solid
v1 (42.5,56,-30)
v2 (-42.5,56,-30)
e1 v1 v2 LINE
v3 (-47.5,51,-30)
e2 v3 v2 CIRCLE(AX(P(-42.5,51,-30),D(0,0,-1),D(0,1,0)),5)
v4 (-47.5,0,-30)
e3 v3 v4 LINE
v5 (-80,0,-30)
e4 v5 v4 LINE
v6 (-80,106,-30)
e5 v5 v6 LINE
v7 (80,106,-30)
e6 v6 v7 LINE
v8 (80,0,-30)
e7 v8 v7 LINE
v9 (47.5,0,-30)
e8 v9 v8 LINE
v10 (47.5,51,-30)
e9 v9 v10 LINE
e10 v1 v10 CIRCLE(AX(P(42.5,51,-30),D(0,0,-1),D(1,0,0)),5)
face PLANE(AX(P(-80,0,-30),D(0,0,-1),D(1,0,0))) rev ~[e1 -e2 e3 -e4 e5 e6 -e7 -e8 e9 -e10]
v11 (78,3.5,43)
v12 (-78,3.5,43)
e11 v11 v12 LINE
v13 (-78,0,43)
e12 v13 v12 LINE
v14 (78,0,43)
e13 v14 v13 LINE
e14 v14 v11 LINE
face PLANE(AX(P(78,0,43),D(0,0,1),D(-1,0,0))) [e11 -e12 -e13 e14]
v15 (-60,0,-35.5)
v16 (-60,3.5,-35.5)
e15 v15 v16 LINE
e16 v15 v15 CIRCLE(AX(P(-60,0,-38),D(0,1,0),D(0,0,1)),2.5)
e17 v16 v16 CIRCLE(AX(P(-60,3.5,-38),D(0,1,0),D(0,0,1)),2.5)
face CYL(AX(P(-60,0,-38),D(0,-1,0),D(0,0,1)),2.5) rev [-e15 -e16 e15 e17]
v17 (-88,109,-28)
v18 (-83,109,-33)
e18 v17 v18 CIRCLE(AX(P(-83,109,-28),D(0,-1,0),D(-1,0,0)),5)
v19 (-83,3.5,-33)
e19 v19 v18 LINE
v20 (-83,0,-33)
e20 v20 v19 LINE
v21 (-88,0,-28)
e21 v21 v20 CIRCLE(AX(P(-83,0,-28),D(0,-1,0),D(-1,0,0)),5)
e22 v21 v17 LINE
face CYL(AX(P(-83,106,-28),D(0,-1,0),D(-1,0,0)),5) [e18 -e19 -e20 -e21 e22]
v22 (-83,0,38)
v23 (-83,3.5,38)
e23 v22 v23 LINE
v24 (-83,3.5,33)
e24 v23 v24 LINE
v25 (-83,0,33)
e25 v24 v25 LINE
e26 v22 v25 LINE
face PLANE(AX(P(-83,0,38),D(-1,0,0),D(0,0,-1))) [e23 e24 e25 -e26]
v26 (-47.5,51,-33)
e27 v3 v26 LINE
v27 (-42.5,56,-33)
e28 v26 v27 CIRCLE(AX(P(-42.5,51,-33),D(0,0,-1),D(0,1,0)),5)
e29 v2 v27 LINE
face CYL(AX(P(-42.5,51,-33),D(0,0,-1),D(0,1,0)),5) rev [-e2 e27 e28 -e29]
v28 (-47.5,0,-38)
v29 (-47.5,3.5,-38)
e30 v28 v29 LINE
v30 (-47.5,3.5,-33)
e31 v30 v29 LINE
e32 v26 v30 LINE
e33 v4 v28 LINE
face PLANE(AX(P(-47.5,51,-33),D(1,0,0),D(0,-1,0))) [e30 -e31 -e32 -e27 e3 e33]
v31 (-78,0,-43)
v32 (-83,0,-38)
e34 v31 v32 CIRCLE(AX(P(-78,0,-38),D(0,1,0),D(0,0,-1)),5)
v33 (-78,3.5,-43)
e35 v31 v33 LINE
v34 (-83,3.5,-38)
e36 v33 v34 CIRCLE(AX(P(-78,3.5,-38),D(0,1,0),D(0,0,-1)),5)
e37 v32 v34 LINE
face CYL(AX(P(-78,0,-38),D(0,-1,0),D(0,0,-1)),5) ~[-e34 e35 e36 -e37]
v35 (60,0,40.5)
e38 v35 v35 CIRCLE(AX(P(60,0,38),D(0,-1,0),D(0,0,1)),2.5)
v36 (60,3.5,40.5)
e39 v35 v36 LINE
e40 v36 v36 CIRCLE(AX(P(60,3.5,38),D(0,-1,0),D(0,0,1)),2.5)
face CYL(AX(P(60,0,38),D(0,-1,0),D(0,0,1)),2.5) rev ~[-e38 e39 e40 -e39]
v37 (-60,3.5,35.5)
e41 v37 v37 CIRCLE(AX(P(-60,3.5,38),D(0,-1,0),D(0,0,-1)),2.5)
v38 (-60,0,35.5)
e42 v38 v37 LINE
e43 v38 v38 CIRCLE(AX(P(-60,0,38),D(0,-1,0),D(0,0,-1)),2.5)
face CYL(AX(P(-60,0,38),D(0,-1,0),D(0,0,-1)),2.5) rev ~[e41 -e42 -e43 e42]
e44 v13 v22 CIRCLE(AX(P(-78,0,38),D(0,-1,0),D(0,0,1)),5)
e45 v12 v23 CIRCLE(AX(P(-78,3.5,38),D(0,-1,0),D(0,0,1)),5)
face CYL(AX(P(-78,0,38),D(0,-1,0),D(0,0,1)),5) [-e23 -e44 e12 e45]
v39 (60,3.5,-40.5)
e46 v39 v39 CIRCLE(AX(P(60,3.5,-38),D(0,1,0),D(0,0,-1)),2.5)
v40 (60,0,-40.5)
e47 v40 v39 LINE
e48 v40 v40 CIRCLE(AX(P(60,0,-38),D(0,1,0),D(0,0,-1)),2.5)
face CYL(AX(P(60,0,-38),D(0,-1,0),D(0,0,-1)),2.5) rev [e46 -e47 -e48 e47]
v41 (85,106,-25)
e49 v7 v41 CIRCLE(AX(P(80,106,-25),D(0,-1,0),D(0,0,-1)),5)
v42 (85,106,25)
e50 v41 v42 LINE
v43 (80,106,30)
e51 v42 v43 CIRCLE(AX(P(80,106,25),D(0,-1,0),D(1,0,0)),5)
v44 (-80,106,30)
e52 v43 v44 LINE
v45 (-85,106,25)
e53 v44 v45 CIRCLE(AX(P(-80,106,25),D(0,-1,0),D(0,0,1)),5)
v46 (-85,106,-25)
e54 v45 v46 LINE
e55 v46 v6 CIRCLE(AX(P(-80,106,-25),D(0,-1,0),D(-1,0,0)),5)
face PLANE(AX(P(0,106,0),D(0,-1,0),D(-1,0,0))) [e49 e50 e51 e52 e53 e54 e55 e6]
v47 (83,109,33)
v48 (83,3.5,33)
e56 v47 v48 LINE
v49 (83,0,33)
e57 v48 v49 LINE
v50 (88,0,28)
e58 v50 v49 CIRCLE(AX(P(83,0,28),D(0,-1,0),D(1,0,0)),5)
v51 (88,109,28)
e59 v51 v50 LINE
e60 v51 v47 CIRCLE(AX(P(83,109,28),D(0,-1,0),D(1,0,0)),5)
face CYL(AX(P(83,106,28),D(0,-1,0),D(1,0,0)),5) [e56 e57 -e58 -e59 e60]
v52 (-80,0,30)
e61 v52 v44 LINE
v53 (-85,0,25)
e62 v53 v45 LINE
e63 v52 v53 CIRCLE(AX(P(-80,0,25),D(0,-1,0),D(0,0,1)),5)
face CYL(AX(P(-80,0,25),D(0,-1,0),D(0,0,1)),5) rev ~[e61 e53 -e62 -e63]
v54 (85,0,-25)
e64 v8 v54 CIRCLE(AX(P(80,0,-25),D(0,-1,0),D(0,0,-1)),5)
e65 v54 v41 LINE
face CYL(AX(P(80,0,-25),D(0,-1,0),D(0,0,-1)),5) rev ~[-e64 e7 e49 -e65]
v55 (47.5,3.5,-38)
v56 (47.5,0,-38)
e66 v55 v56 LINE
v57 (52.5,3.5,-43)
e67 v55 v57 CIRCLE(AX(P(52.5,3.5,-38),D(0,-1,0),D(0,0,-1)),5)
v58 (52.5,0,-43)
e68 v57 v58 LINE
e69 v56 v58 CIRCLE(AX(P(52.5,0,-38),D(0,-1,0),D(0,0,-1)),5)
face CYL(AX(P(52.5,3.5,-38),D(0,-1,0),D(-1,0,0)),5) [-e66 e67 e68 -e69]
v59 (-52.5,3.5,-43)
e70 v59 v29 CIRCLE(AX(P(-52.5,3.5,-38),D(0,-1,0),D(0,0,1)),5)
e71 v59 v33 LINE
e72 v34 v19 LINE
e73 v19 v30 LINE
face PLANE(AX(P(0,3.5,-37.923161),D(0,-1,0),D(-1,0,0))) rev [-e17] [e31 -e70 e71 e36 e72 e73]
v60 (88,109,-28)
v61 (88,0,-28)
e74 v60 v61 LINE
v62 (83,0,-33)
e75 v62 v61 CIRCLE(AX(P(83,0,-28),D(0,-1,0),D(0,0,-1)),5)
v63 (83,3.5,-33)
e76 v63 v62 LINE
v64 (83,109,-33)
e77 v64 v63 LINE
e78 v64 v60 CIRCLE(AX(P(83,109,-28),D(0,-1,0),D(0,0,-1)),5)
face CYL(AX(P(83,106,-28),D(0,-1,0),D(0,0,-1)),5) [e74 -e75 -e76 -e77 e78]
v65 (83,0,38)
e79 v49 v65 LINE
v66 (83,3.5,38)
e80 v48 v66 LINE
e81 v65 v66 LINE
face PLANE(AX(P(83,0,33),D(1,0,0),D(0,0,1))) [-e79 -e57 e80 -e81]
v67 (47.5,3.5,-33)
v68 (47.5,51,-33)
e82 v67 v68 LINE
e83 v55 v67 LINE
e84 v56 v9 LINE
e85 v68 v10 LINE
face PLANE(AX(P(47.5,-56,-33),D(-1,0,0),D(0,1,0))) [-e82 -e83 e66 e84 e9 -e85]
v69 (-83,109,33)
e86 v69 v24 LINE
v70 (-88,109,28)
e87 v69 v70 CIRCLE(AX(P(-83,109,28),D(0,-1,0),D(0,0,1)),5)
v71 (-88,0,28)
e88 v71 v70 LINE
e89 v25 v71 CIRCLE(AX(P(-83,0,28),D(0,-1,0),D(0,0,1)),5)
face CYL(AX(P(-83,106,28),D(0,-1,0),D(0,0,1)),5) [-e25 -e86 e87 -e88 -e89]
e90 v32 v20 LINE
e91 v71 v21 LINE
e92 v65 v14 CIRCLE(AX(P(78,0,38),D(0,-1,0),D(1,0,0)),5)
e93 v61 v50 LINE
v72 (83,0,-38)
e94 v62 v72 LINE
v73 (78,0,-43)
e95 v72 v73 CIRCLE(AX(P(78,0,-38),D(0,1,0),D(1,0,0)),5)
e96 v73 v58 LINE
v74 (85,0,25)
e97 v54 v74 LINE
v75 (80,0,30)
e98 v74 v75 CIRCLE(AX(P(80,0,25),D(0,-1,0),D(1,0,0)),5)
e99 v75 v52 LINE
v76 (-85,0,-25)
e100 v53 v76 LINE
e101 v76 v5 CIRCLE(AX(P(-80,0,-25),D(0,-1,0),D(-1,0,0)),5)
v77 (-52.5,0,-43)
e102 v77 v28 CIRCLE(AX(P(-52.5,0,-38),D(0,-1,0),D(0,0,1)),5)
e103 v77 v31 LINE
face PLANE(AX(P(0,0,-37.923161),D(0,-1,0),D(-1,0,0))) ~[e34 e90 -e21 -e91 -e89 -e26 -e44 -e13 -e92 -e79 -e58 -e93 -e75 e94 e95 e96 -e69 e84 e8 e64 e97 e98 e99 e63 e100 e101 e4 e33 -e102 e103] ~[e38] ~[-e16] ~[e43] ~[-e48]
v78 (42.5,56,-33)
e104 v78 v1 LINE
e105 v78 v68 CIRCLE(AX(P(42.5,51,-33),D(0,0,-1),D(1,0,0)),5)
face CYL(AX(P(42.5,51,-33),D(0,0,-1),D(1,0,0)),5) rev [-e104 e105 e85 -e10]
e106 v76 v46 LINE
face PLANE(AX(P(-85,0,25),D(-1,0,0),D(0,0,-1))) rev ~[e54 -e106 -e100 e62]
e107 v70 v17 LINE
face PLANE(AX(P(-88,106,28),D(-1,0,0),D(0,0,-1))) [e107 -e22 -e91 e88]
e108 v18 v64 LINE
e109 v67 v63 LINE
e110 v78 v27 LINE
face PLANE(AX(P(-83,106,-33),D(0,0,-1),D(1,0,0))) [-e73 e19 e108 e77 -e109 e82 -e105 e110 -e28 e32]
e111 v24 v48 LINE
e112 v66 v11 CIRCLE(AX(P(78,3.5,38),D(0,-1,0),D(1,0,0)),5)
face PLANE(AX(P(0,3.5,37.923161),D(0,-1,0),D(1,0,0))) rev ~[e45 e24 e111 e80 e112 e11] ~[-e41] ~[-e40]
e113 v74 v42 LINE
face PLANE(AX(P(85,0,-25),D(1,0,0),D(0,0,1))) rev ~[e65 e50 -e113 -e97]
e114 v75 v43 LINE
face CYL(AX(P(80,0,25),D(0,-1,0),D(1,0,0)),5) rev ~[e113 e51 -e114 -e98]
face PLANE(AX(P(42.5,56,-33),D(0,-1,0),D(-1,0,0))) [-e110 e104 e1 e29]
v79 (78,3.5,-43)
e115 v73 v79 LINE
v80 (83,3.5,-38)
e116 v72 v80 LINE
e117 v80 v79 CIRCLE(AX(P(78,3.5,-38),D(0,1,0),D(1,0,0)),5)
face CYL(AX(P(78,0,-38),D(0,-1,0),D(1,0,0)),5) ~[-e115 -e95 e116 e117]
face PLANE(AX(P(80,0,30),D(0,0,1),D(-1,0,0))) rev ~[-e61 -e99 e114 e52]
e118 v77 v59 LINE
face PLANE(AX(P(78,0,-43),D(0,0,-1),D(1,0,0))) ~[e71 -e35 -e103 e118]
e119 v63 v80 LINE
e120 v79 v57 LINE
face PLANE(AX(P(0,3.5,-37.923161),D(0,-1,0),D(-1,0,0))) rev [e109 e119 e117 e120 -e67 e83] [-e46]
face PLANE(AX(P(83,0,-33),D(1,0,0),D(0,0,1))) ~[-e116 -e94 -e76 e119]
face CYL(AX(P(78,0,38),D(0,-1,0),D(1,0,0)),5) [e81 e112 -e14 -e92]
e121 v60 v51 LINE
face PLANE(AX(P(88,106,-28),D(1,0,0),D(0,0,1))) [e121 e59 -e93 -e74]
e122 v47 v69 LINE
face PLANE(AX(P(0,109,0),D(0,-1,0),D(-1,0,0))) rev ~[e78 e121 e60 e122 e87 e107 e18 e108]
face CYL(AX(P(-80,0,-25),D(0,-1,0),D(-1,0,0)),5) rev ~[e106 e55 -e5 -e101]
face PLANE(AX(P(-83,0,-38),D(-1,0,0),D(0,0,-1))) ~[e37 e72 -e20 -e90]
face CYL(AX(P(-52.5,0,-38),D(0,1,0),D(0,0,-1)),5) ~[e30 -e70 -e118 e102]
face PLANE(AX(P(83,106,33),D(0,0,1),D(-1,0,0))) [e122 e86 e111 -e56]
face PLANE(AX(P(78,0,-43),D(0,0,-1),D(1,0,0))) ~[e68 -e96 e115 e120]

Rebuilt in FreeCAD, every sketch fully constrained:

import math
import FreeCAD as App
import Part
import Sketcher

V = App.Vector
Q = App.Units.Quantity


def edges_at(feature, points):
    """Names of the edges that pass closest to the given points."""
    edges = feature.Shape.Edges
    near = lambda p: min(range(len(edges)), key=lambda i: edges[i].distToShape(Part.Vertex(*p))[0])
    return sorted({f"Edge{near(p) + 1}" for p in points})

doc = App.newDocument("Part")
body = doc.addObject("PartDesign::Body", "Body")

# Sketch on XZ plane
sketch1 = doc.addObject("Sketcher::SketchObject", "Sketch")
body.addObject(sketch1)
sketch1.AttachmentSupport = (doc.XZ_Plane, [""])
sketch1.MapMode = "FlatFace"
sketch1.addGeometry(Part.LineSegment(V(-83, 33, 0), V(83, 33, 0)), False)
sketch1.addGeometry(Part.ArcOfCircle(Part.Circle(V(83, 28, 0), V(0, 0, 1), 5), math.radians(0), math.radians(90)), False)
sketch1.addGeometry(Part.LineSegment(V(88, 28, 0), V(88, -28, 0)), False)
sketch1.addGeometry(Part.ArcOfCircle(Part.Circle(V(83, -28, 0), V(0, 0, 1), 5), math.radians(-90), math.radians(0)), False)
sketch1.addGeometry(Part.LineSegment(V(83, -33, 0), V(-83, -33, 0)), False)
sketch1.addGeometry(Part.ArcOfCircle(Part.Circle(V(-83, -28, 0), V(0, 0, 1), 5), math.radians(180), math.radians(270)), False)
sketch1.addGeometry(Part.LineSegment(V(-88, -28, 0), V(-88, 28, 0)), False)
sketch1.addGeometry(Part.ArcOfCircle(Part.Circle(V(-83, 28, 0), V(0, 0, 1), 5), math.radians(90), math.radians(180)), False)
sketch1.addGeometry(Part.LineSegment(V(80, 30, 0), V(-80, 30, 0)), False)
sketch1.addGeometry(Part.ArcOfCircle(Part.Circle(V(-80, 25, 0), V(0, 0, 1), 5), math.radians(90), math.radians(180)), False)
sketch1.addGeometry(Part.LineSegment(V(-85, 25, 0), V(-85, -25, 0)), False)
sketch1.addGeometry(Part.ArcOfCircle(Part.Circle(V(-80, -25, 0), V(0, 0, 1), 5), math.radians(180), math.radians(270)), False)
sketch1.addGeometry(Part.LineSegment(V(-80, -30, 0), V(80, -30, 0)), False)
sketch1.addGeometry(Part.ArcOfCircle(Part.Circle(V(80, -25, 0), V(0, 0, 1), 5), math.radians(-90), math.radians(0)), False)
sketch1.addGeometry(Part.LineSegment(V(85, -25, 0), V(85, 25, 0)), False)
sketch1.addGeometry(Part.ArcOfCircle(Part.Circle(V(80, 25, 0), V(0, 0, 1), 5), math.radians(0), math.radians(90)), False)
sketch1.addConstraint(Sketcher.Constraint("Tangent", 0, 2, 1, 2))
sketch1.addConstraint(Sketcher.Constraint("Tangent", 1, 1, 2, 1))
sketch1.addConstraint(Sketcher.Constraint("Tangent", 2, 2, 3, 2))
sketch1.addConstraint(Sketcher.Constraint("Tangent", 3, 1, 4, 1))
sketch1.addConstraint(Sketcher.Constraint("Tangent", 4, 2, 5, 2))
sketch1.addConstraint(Sketcher.Constraint("Tangent", 5, 1, 6, 1))
sketch1.addConstraint(Sketcher.Constraint("Tangent", 6, 2, 7, 2))
sketch1.addConstraint(Sketcher.Constraint("Tangent", 7, 1, 0, 1))
sketch1.addConstraint(Sketcher.Constraint("Tangent", 8, 2, 9, 1))
sketch1.addConstraint(Sketcher.Constraint("Tangent", 9, 2, 10, 1))
sketch1.addConstraint(Sketcher.Constraint("Tangent", 10, 2, 11, 1))
sketch1.addConstraint(Sketcher.Constraint("Tangent", 11, 2, 12, 1))
sketch1.addConstraint(Sketcher.Constraint("Tangent", 12, 2, 13, 1))
sketch1.addConstraint(Sketcher.Constraint("Tangent", 13, 2, 14, 1))
sketch1.addConstraint(Sketcher.Constraint("Tangent", 14, 2, 15, 1))
sketch1.addConstraint(Sketcher.Constraint("Tangent", 15, 2, 8, 1))
sketch1.addConstraint(Sketcher.Constraint("Horizontal", 0))
sketch1.addConstraint(Sketcher.Constraint("Vertical", 2))
sketch1.addConstraint(Sketcher.Constraint("Horizontal", 4))
sketch1.addConstraint(Sketcher.Constraint("Vertical", 6))
sketch1.addConstraint(Sketcher.Constraint("Horizontal", 8))
sketch1.addConstraint(Sketcher.Constraint("Vertical", 10))
sketch1.addConstraint(Sketcher.Constraint("Horizontal", 12))
sketch1.addConstraint(Sketcher.Constraint("Vertical", 14))
sketch1.addConstraint(Sketcher.Constraint("Equal", 1, 3))
sketch1.addConstraint(Sketcher.Constraint("Equal", 3, 5))
sketch1.addConstraint(Sketcher.Constraint("Equal", 5, 7))
sketch1.addConstraint(Sketcher.Constraint("Equal", 7, 9))
sketch1.addConstraint(Sketcher.Constraint("Equal", 9, 11))
sketch1.addConstraint(Sketcher.Constraint("Equal", 11, 13))
sketch1.addConstraint(Sketcher.Constraint("Equal", 13, 15))
sketch1.addConstraint(Sketcher.Constraint("Symmetric", 1, 3, 5, 3, -1, 1))
sketch1.addConstraint(Sketcher.Constraint("Symmetric", 9, 3, 13, 3, -1, 1))
sketch1.addConstraint(Sketcher.Constraint("Radius", 1, Q("5 mm")))
sketch1.addConstraint(Sketcher.Constraint("DistanceX", 0, 1, 0, 2, Q("166 mm")))
sketch1.addConstraint(Sketcher.Constraint("DistanceX", 8, 2, 8, 1, Q("160 mm")))
sketch1.addConstraint(Sketcher.Constraint("DistanceY", 2, 2, 2, 1, Q("56 mm")))
sketch1.addConstraint(Sketcher.Constraint("DistanceY", 10, 2, 10, 1, Q("50 mm")))
pad1 = doc.addObject("PartDesign::Pad", "Pad")
body.addObject(pad1)
pad1.Profile = sketch1
pad1.Length = 106
pad1.Reversed = True

# Sketch on XZ plane
sketch2 = doc.addObject("Sketcher::SketchObject", "Sketch001")
body.addObject(sketch2)
sketch2.AttachmentSupport = (doc.XZ_Plane, [""])
sketch2.MapMode = "FlatFace"
sketch2.AttachmentOffset = App.Placement(V(0, 0, -106), App.Rotation())
sketch2.addGeometry(Part.LineSegment(V(83, -33, 0), V(-83, -33, 0)), False)
sketch2.addGeometry(Part.ArcOfCircle(Part.Circle(V(-83, -28, 0), V(0, 0, 1), 5), math.radians(180), math.radians(270)), False)
sketch2.addGeometry(Part.LineSegment(V(-88, -28, 0), V(-88, 28, 0)), False)
sketch2.addGeometry(Part.ArcOfCircle(Part.Circle(V(-83, 28, 0), V(0, 0, 1), 5), math.radians(90), math.radians(180)), False)
sketch2.addGeometry(Part.LineSegment(V(-83, 33, 0), V(83, 33, 0)), False)
sketch2.addGeometry(Part.ArcOfCircle(Part.Circle(V(83, 28, 0), V(0, 0, 1), 5), math.radians(0), math.radians(90)), False)
sketch2.addGeometry(Part.LineSegment(V(88, 28, 0), V(88, -28, 0)), False)
sketch2.addGeometry(Part.ArcOfCircle(Part.Circle(V(83, -28, 0), V(0, 0, 1), 5), math.radians(-90), math.radians(0)), False)
sketch2.addConstraint(Sketcher.Constraint("Tangent", 0, 2, 1, 2))
sketch2.addConstraint(Sketcher.Constraint("Tangent", 1, 1, 2, 1))
sketch2.addConstraint(Sketcher.Constraint("Tangent", 2, 2, 3, 2))
sketch2.addConstraint(Sketcher.Constraint("Tangent", 3, 1, 4, 1))
sketch2.addConstraint(Sketcher.Constraint("Tangent", 4, 2, 5, 2))
sketch2.addConstraint(Sketcher.Constraint("Tangent", 5, 1, 6, 1))
sketch2.addConstraint(Sketcher.Constraint("Tangent", 6, 2, 7, 2))
sketch2.addConstraint(Sketcher.Constraint("Tangent", 7, 1, 0, 1))
sketch2.addConstraint(Sketcher.Constraint("Horizontal", 0))
sketch2.addConstraint(Sketcher.Constraint("Vertical", 2))
sketch2.addConstraint(Sketcher.Constraint("Horizontal", 4))
sketch2.addConstraint(Sketcher.Constraint("Vertical", 6))
sketch2.addConstraint(Sketcher.Constraint("Equal", 1, 3))
sketch2.addConstraint(Sketcher.Constraint("Equal", 3, 5))
sketch2.addConstraint(Sketcher.Constraint("Equal", 5, 7))
sketch2.addConstraint(Sketcher.Constraint("Symmetric", 1, 3, 5, 3, -1, 1))
sketch2.addConstraint(Sketcher.Constraint("Radius", 1, Q("5 mm")))
sketch2.addConstraint(Sketcher.Constraint("DistanceX", 0, 2, 0, 1, Q("166 mm")))
sketch2.addConstraint(Sketcher.Constraint("DistanceY", 2, 1, 2, 2, Q("56 mm")))
pad2 = doc.addObject("PartDesign::Pad", "Pad001")
body.addObject(pad2)
pad2.Profile = sketch2
pad2.Length = 3
pad2.Reversed = True

# Sketch on XZ plane
sketch3 = doc.addObject("Sketcher::SketchObject", "Sketch002")
body.addObject(sketch3)
sketch3.AttachmentSupport = (doc.XZ_Plane, [""])
sketch3.MapMode = "FlatFace"
sketch3.addGeometry(Part.LineSegment(V(-83, 33, 0), V(83, 33, 0)), False)
sketch3.addGeometry(Part.LineSegment(V(83, 33, 0), V(83, 38, 0)), False)
sketch3.addGeometry(Part.ArcOfCircle(Part.Circle(V(78, 38, 0), V(0, 0, 1), 5), math.radians(0), math.radians(90)), False)
sketch3.addGeometry(Part.LineSegment(V(78, 43, 0), V(-78, 43, 0)), False)
sketch3.addGeometry(Part.ArcOfCircle(Part.Circle(V(-78, 38, 0), V(0, 0, 1), 5), math.radians(90), math.radians(180)), False)
sketch3.addGeometry(Part.LineSegment(V(-83, 38, 0), V(-83, 33, 0)), False)
sketch3.addGeometry(Part.Circle(V(-60, 38, 0), V(0, 0, 1), 2.5), False)
sketch3.addGeometry(Part.Circle(V(60, 38, 0), V(0, 0, 1), 2.5), False)
sketch3.addConstraint(Sketcher.Constraint("Coincident", 0, 2, 1, 1))
sketch3.addConstraint(Sketcher.Constraint("Tangent", 1, 2, 2, 1))
sketch3.addConstraint(Sketcher.Constraint("Tangent", 2, 2, 3, 1))
sketch3.addConstraint(Sketcher.Constraint("Tangent", 3, 2, 4, 1))
sketch3.addConstraint(Sketcher.Constraint("Tangent", 4, 2, 5, 1))
sketch3.addConstraint(Sketcher.Constraint("Coincident", 5, 2, 0, 1))
sketch3.addConstraint(Sketcher.Constraint("Horizontal", 0))
sketch3.addConstraint(Sketcher.Constraint("Vertical", 1))
sketch3.addConstraint(Sketcher.Constraint("Horizontal", 3))
sketch3.addConstraint(Sketcher.Constraint("Vertical", 5))
sketch3.addConstraint(Sketcher.Constraint("Equal", 2, 4))
sketch3.addConstraint(Sketcher.Constraint("Equal", 6, 7))
sketch3.addConstraint(Sketcher.Constraint("Symmetric", 6, 3, 7, 3, -2))
sketch3.addConstraint(Sketcher.Constraint("Horizontal", 4, 3, 6, 3))
sketch3.addConstraint(Sketcher.Constraint("Diameter", 6, Q("5 mm")))
sketch3.addConstraint(Sketcher.Constraint("Radius", 2, Q("5 mm")))
sketch3.addConstraint(Sketcher.Constraint("DistanceX", 0, 1, 0, 2, Q("166 mm")))
sketch3.addConstraint(Sketcher.Constraint("DistanceY", 1, 1, 1, 2, Q("5 mm")))
sketch3.addConstraint(Sketcher.Constraint("DistanceX", -1, 1, 2, 3, Q("78 mm")))
sketch3.addConstraint(Sketcher.Constraint("DistanceY", -1, 1, 2, 3, Q("38 mm")))
sketch3.addConstraint(Sketcher.Constraint("DistanceX", 6, 3, -1, 1, Q("60 mm")))
pad3 = doc.addObject("PartDesign::Pad", "Pad002")
body.addObject(pad3)
pad3.Profile = sketch3
pad3.Length = 3.5
pad3.Reversed = True
doc.recompute()

mirrored = doc.addObject("PartDesign::Mirrored", "Mirrored")
body.addObject(mirrored)
mirrored.Originals = [pad3]
mirrored.MirrorPlane = (doc.XY_Plane, [""])
body.Tip = mirrored

# Sketch on XY plane
sketch4 = doc.addObject("Sketcher::SketchObject", "Sketch003")
body.addObject(sketch4)
sketch4.AttachmentSupport = (doc.XY_Plane, [""])
sketch4.MapMode = "FlatFace"
sketch4.AttachmentOffset = App.Placement(V(0, 0, -33), App.Rotation())
sketch4.addGeometry(Part.LineSegment(V(48, -56, 0), V(-48, -56, 0)), False)
sketch4.addGeometry(Part.LineSegment(V(-48, -56, 0), V(-48, 51, 0)), False)
sketch4.addGeometry(Part.ArcOfCircle(Part.Circle(V(-42, 51, 0), V(0, 0, 1), 5), math.radians(90), math.radians(180)), False)
sketch4.addGeometry(Part.LineSegment(V(-42, 56, 0), V(42, 56, 0)), False)
sketch4.addGeometry(Part.ArcOfCircle(Part.Circle(V(42, 51, 0), V(0, 0, 1), 5), math.radians(0), math.radians(90)), False)
sketch4.addGeometry(Part.LineSegment(V(48, 51, 0), V(48, -56, 0)), False)
sketch4.addConstraint(Sketcher.Constraint("Coincident", 0, 2, 1, 1))
sketch4.addConstraint(Sketcher.Constraint("Tangent", 1, 2, 2, 2))
sketch4.addConstraint(Sketcher.Constraint("Tangent", 2, 1, 3, 1))
sketch4.addConstraint(Sketcher.Constraint("Tangent", 3, 2, 4, 2))
sketch4.addConstraint(Sketcher.Constraint("Tangent", 4, 1, 5, 1))
sketch4.addConstraint(Sketcher.Constraint("Coincident", 5, 2, 0, 1))
sketch4.addConstraint(Sketcher.Constraint("Horizontal", 0))
sketch4.addConstraint(Sketcher.Constraint("Vertical", 1))
sketch4.addConstraint(Sketcher.Constraint("Horizontal", 3))
sketch4.addConstraint(Sketcher.Constraint("Vertical", 5))
sketch4.addConstraint(Sketcher.Constraint("Equal", 2, 4))
sketch4.addConstraint(Sketcher.Constraint("Radius", 2, Q("5 mm")))
sketch4.addConstraint(Sketcher.Constraint("DistanceX", 0, 2, 0, 1, Q("95 mm")))
sketch4.addConstraint(Sketcher.Constraint("DistanceY", 1, 1, 1, 2, Q("107 mm")))
sketch4.addConstraint(Sketcher.Constraint("DistanceY", -1, 1, 2, 3, Q("51 mm")))
sketch4.addConstraint(Sketcher.Constraint("DistanceX", 2, 3, -1, 1, Q("42.5 mm")))
pocket1 = doc.addObject("PartDesign::Pocket", "Pocket")
body.addObject(pocket1)
pocket1.Profile = sketch4
pocket1.Length = 33
pocket1.Midplane = True
doc.recompute()

fillet = doc.addObject("PartDesign::Fillet", "Fillet")
body.addObject(fillet)
fillet.Base = (pocket1, edges_at(pocket1, [(47.5, 1.75, -43), (-47.5, 1.75, -43)]))
fillet.Radius = 5

doc.recompute()
